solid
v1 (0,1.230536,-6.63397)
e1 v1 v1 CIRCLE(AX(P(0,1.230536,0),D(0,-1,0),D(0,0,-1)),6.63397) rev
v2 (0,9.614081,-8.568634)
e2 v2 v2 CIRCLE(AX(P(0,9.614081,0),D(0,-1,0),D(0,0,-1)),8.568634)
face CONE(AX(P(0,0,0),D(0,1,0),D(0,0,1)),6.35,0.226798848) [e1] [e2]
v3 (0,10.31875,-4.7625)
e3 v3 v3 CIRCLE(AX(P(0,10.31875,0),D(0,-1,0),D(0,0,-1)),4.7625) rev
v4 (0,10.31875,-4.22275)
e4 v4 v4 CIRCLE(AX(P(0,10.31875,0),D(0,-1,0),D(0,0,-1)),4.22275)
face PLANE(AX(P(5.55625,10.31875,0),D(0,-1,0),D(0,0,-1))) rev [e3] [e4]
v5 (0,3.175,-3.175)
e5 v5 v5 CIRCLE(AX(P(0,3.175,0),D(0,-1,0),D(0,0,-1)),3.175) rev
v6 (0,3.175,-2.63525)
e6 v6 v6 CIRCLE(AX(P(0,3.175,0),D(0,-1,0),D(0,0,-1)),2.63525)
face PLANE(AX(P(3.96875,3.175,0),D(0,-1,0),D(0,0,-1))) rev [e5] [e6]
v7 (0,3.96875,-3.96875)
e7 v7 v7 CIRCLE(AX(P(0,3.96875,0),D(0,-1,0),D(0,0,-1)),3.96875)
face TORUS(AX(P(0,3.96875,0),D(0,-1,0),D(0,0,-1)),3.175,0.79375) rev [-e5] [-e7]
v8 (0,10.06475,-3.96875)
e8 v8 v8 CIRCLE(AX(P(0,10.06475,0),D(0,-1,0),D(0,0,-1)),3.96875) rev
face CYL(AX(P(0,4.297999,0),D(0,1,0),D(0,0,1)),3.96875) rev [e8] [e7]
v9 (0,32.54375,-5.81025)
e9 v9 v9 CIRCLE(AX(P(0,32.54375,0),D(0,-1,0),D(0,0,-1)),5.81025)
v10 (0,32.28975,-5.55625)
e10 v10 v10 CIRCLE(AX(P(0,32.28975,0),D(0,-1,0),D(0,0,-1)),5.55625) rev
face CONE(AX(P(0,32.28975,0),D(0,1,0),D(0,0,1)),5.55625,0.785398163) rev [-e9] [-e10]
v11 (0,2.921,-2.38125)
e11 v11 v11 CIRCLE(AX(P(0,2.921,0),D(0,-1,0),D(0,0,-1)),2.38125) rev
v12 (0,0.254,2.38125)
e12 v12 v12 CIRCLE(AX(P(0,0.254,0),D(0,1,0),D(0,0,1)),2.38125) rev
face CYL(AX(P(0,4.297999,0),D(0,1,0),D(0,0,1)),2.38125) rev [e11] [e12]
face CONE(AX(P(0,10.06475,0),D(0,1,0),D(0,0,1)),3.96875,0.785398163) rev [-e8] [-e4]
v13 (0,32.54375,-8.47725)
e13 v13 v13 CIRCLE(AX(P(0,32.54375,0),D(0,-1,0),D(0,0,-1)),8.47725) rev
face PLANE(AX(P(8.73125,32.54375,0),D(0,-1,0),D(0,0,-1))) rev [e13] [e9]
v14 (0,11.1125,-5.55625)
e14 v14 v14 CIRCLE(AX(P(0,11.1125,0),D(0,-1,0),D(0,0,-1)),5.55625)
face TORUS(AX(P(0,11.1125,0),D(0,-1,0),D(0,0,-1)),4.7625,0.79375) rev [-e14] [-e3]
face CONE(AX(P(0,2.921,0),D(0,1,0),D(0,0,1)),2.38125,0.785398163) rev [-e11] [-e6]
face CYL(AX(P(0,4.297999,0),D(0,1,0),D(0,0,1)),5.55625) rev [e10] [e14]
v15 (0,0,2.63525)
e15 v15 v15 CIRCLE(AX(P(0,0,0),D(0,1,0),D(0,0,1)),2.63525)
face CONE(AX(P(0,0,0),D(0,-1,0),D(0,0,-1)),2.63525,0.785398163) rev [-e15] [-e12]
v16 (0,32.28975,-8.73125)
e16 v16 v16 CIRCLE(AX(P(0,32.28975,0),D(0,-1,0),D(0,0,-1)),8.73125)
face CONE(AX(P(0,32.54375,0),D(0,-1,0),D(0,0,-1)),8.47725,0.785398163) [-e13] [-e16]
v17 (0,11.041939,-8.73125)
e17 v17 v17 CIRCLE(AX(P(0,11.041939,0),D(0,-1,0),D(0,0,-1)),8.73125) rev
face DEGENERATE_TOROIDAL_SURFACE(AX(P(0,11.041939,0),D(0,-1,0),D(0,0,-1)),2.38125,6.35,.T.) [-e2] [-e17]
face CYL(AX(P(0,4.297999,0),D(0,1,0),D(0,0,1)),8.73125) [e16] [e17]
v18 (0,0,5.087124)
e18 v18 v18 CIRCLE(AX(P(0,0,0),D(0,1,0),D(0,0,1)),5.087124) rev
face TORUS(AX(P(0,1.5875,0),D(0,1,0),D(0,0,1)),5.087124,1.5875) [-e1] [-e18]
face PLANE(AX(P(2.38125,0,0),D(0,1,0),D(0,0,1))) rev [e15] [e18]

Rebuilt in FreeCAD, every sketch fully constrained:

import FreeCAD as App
import Part
import Sketcher

V = App.Vector
Q = App.Units.Quantity


def edges_at(feature, points):
    """Names of the edges that pass closest to the given points."""
    edges = feature.Shape.Edges
    near = lambda p: min(range(len(edges)), key=lambda i: edges[i].distToShape(Part.Vertex(*p))[0])
    return sorted({f"Edge{near(p) + 1}" for p in points})


def add_polygon(sketch, points):
    """Adds a closed chain of lines whose ends are joined by coincident constraints."""
    first, n = sketch.GeometryCount, len(points)
    for a, b in zip(points, points[1:] + points[:1]):
        sketch.addGeometry(Part.LineSegment(App.Vector(*a, 0), App.Vector(*b, 0)), False)
    for i in range(n):
        sketch.addConstraint(Sketcher.Constraint("Coincident", first + i, 2, first + (i + 1) % n, 1))

doc = App.newDocument("Part")
body = doc.addObject("PartDesign::Body", "Body")

sketch1 = body.newObject("Sketcher::SketchObject", "Sketch")
sketch1.AttachmentSupport = (doc.getObject("XY_Plane"), [""])
sketch1.MapMode = "FlatFace"
add_polygon(sketch1, [(8.7, 32.5), (5.6, 32.5), (5.6, 10.3), (4, 10.3), (4, 3.2), (2.4, 3.2), (2.4, 0), (6.3, 0), (8.7, 10.3)])
sketch1.addConstraint([
    Sketcher.Constraint("Horizontal", 0),
    Sketcher.Constraint("Vertical", 1),
    Sketcher.Constraint("Horizontal", 2),
    Sketcher.Constraint("Vertical", 3),
    Sketcher.Constraint("Horizontal", 4),
    Sketcher.Constraint("Vertical", 5),
    Sketcher.Constraint("Horizontal", 6),
    Sketcher.Constraint("Vertical", 8),
    Sketcher.Constraint("PointOnObject", 5, 2, -1),
    Sketcher.Constraint("Horizontal", 2, 2, 7, 2),
    Sketcher.Constraint("Equal", 2, 4),
    Sketcher.Constraint("Equal", 0, 5),
    Sketcher.Constraint("DistanceX", 0, 2, 0, 1, Q("0.125 in")),
    Sketcher.Constraint("DistanceX", 2, 2, 2, 1, Q("0.0625 in")),
    Sketcher.Constraint("DistanceX", 6, 1, 6, 2, Q("0.15625 in")),
    Sketcher.Constraint("DistanceY", 1, 2, 1, 1, Q("0.875 in")),
    Sketcher.Constraint("DistanceY", 3, 2, 3, 1, Q("0.28125 in")),
    Sketcher.Constraint("DistanceX", -1, 1, 6, 2, Q("0.25 in")),
])
revolution = body.newObject("PartDesign::Revolution", "Revolution")
revolution.Profile = sketch1
revolution.ReferenceAxis = (sketch1, ["V_Axis"])
revolution.Angle = 360
doc.recompute()

fillet = body.newObject("PartDesign::Fillet", "Fillet")
fillet.Base = (revolution, edges_at(revolution, [(-8.731, 10.319, 0)]))
fillet.Radius = Q("0.25 in")
doc.recompute()

fillet2 = body.newObject("PartDesign::Fillet", "Fillet001")
fillet2.Base = (fillet, edges_at(fillet, [(-6.35, 0, 0)]))
fillet2.Radius = Q("0.0625 in")
doc.recompute()

fillet3 = body.newObject("PartDesign::Fillet", "Fillet002")
fillet3.Base = (fillet2, edges_at(fillet2, [(-5.556, 10.319, 0), (-3.969, 3.175, 0)]))
fillet3.Radius = Q("0.03125 in")
doc.recompute()

chamfer = body.newObject("PartDesign::Chamfer", "Chamfer")
chamfer.Base = (fillet3, edges_at(fillet3, [
    (-2.381, 0, 0),
    (-8.731, 32.544, 0),
    (-5.556, 32.544, 0),
    (-3.969, 10.319, 0),
    (-2.381, 3.175, 0),
]))
chamfer.Size = Q("0.01 in")

doc.recompute()
